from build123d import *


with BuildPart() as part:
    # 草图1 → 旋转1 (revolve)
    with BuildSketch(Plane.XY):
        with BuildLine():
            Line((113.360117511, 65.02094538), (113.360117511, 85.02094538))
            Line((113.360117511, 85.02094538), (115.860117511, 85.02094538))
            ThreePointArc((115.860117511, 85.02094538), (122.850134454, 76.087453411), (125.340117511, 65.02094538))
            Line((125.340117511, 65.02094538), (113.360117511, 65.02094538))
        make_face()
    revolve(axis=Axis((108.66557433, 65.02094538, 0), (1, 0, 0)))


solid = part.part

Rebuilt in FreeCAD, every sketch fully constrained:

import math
import FreeCAD as App
import Part
import Sketcher

V = App.Vector
Q = App.Units.Quantity

doc = App.newDocument("Part")
body = doc.addObject("PartDesign::Body", "Body")

# Sketch on XY plane
sketch1 = doc.addObject("Sketcher::SketchObject", "Sketch")
body.addObject(sketch1)
sketch1.AttachmentSupport = (doc.XY_Plane, [""])
sketch1.MapMode = "FlatFace"
sketch1.addGeometry([
    Part.LineSegment(V(113.4, 85, 0), V(113.4, 65, 0)),
    Part.LineSegment(V(113.4, 65, 0), V(125.3, 65, 0)),
    Part.ArcOfCircle(Part.Circle(V(99.5, 65, 0), V(0, 0, 1), 25.8), math.radians(0), math.radians(51)),
    Part.LineSegment(V(115.9, 85, 0), V(113.4, 85, 0)),
], False)
sketch1.addGeometry(Part.LineSegment(V(99.5, 65, 0), V(125.3, 65, 0)), True)  # axis
sketch1.addConstraint([
    Sketcher.Constraint("Coincident", 0, 2, 1, 1),
    Sketcher.Constraint("Coincident", 1, 2, 2, 1),
    Sketcher.Constraint("Coincident", 2, 2, 3, 1),
    Sketcher.Constraint("Coincident", 3, 2, 0, 1),
    Sketcher.Constraint("Vertical", 0),
    Sketcher.Constraint("Horizontal", 1),
    Sketcher.Constraint("Horizontal", 3),
    Sketcher.Constraint("Horizontal", 4),
    Sketcher.Constraint("Coincident", 4, 1, 2, 3),
    Sketcher.Constraint("Coincident", 4, 2, 1, 2),
    Sketcher.Constraint("DistanceY", 0, 2, 0, 1, Q("20 mm")),
    Sketcher.Constraint("DistanceX", 3, 2, 3, 1, Q("2.5 mm")),
    Sketcher.Constraint("DistanceX", 1, 1, 1, 2, Q("11.98 mm")),
    Sketcher.Constraint("DistanceX", -1, 1, 2, 3, Q("99.503071 mm")),
    Sketcher.Constraint("DistanceY", -1, 1, 2, 3, Q("65.020945 mm")),
])
revolution = doc.addObject("PartDesign::Revolution", "Revolution")
body.addObject(revolution)
revolution.Profile = sketch1
revolution.ReferenceAxis = (sketch1, ["Axis0"])
revolution.Angle = 360

doc.recompute()
